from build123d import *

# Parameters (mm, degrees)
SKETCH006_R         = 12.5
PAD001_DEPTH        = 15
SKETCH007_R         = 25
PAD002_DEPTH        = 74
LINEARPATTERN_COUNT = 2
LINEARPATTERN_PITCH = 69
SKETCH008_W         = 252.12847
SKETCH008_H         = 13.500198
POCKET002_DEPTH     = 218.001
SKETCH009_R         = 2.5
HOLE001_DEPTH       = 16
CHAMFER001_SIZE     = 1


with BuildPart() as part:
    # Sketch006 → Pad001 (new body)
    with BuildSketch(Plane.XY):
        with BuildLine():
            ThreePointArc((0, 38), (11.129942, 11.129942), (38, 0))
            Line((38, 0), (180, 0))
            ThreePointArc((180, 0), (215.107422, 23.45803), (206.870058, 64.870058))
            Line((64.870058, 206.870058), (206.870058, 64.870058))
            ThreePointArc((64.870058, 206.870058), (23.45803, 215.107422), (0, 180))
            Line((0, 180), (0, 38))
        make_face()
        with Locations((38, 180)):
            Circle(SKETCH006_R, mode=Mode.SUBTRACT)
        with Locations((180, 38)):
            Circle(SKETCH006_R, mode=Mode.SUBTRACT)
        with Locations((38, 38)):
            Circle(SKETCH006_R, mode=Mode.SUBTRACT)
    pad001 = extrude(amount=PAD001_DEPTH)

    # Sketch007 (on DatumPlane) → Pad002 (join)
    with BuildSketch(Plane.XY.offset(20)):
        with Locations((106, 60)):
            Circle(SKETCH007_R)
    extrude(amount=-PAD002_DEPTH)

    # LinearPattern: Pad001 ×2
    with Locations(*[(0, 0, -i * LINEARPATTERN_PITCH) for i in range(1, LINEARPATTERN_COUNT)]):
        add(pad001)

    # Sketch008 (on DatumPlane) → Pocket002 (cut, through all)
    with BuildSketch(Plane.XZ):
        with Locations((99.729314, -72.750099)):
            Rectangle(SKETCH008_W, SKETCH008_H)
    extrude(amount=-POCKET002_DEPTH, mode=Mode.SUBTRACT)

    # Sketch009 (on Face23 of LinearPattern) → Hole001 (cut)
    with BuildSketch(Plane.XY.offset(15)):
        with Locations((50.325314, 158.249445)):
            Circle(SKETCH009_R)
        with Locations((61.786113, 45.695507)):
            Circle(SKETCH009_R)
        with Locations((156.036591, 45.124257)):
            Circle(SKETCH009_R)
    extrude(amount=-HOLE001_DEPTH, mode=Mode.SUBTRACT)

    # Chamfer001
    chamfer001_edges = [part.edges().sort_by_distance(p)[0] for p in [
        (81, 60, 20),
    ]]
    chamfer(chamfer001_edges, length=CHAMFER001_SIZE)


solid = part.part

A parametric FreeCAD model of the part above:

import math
import FreeCAD as App
import Part
import Sketcher

V = App.Vector
Q = App.Units.Quantity


def edges_at(feature, points):
    """Names of the edges that pass closest to the given points."""
    edges = feature.Shape.Edges
    near = lambda p: min(range(len(edges)), key=lambda i: edges[i].distToShape(Part.Vertex(*p))[0])
    return sorted({f"Edge{near(p) + 1}" for p in points})


def add_polygon(sketch, points):
    """Adds a closed chain of lines whose ends are joined by coincident constraints."""
    first, n = sketch.GeometryCount, len(points)
    for a, b in zip(points, points[1:] + points[:1]):
        sketch.addGeometry(Part.LineSegment(App.Vector(*a, 0), App.Vector(*b, 0)), False)
    for i in range(n):
        sketch.addConstraint(Sketcher.Constraint("Coincident", first + i, 2, first + (i + 1) % n, 1))

doc = App.newDocument("Part")
body = doc.addObject("PartDesign::Body", "Body")

# Sketch on XY plane
sketch1 = body.newObject("Sketcher::SketchObject", "Sketch")
sketch1.AttachmentSupport = (doc.getObject("XY_Plane"), [""])
sketch1.MapMode = "FlatFace"
sketch1.addGeometry(Part.ArcOfCircle(Part.Circle(V(38, 38, 0), V(0, 0, 1), 38), math.radians(180), math.radians(270)), False)
sketch1.addGeometry(Part.LineSegment(V(38, 0, 0), V(180, 0, 0)), False)
sketch1.addGeometry(Part.ArcOfCircle(Part.Circle(V(180, 38, 0), V(0, 0, 1), 38), math.radians(-90), math.radians(45)), False)
sketch1.addGeometry(Part.LineSegment(V(207, 65, 0), V(65, 207, 0)), False)
sketch1.addGeometry(Part.ArcOfCircle(Part.Circle(V(38, 180, 0), V(0, 0, 1), 38), math.radians(45), math.radians(180)), False)
sketch1.addGeometry(Part.LineSegment(V(0, 180, 0), V(0, 38, 0)), False)
sketch1.addGeometry(Part.Circle(V(38, 38, 0), V(0, 0, 1), 12), False)
sketch1.addGeometry(Part.Circle(V(180, 38, 0), V(0, 0, 1), 12), False)
sketch1.addGeometry(Part.Circle(V(38, 180, 0), V(0, 0, 1), 12), False)
sketch1.addConstraint(Sketcher.Constraint("Tangent", 0, 2, 1, 1))
sketch1.addConstraint(Sketcher.Constraint("Tangent", 1, 2, 2, 1))
sketch1.addConstraint(Sketcher.Constraint("Tangent", 2, 2, 3, 1))
sketch1.addConstraint(Sketcher.Constraint("Tangent", 3, 2, 4, 1))
sketch1.addConstraint(Sketcher.Constraint("Tangent", 4, 2, 5, 1))
sketch1.addConstraint(Sketcher.Constraint("Tangent", 5, 2, 0, 1))
sketch1.addConstraint(Sketcher.Constraint("Horizontal", 1))
sketch1.addConstraint(Sketcher.Constraint("Vertical", 5))
sketch1.addConstraint(Sketcher.Constraint("Coincident", 6, 3, 0, 3))
sketch1.addConstraint(Sketcher.Constraint("Coincident", 7, 3, 2, 3))
sketch1.addConstraint(Sketcher.Constraint("Coincident", 8, 3, 4, 3))
sketch1.addConstraint(Sketcher.Constraint("Equal", 0, 2))
sketch1.addConstraint(Sketcher.Constraint("Equal", 2, 4))
sketch1.addConstraint(Sketcher.Constraint("Equal", 6, 7))
sketch1.addConstraint(Sketcher.Constraint("Equal", 7, 8))
sketch1.addConstraint(Sketcher.Constraint("PointOnObject", 0, 2, -1))
sketch1.addConstraint(Sketcher.Constraint("PointOnObject", 4, 2, -2))
sketch1.addConstraint(Sketcher.Constraint("Equal", 1, 5))
sketch1.addConstraint(Sketcher.Constraint("Diameter", 6, Q("25 mm")))
sketch1.addConstraint(Sketcher.Constraint("Radius", 0, Q("37.999999 mm")))
sketch1.addConstraint(Sketcher.Constraint("DistanceX", 1, 1, 1, 2, Q("142 mm")))
pad1 = body.newObject("PartDesign::Pad", "Pad")
pad1.Profile = sketch1
pad1.Length = 15

# Sketch on XY plane
sketch2 = body.newObject("Sketcher::SketchObject", "Sketch001")
sketch2.AttachmentSupport = (doc.getObject("XY_Plane"), [""])
sketch2.MapMode = "FlatFace"
sketch2.AttachmentOffset = App.Placement(V(0, 0, 20), App.Rotation())
sketch2.addGeometry(Part.Circle(V(106, 60, 0), V(0, 0, 1), 25), False)
sketch2.addConstraint(Sketcher.Constraint("Diameter", 0, Q("50 mm")))
sketch2.addConstraint(Sketcher.Constraint("DistanceX", -1, 1, 0, 3, Q("106 mm")))
sketch2.addConstraint(Sketcher.Constraint("DistanceY", -1, 1, 0, 3, Q("60 mm")))
pad2 = body.newObject("PartDesign::Pad", "Pad001")
pad2.Profile = sketch2
pad2.Length = 74
pad2.Reversed = True
doc.recompute()

linearpattern = body.newObject("PartDesign::LinearPattern", "LinearPattern")
linearpattern.Originals = [pad1]
linearpattern.Direction = (doc.getObject("Z_Axis"), [""])
linearpattern.Mode = "offset"
linearpattern.Offset = 69
linearpattern.Occurrences = 2
linearpattern.Reversed = True
body.Tip = linearpattern

# Sketch on XZ plane
sketch3 = body.newObject("Sketcher::SketchObject", "Sketch002")
sketch3.AttachmentSupport = (doc.getObject("XZ_Plane"), [""])
sketch3.MapMode = "FlatFace"
add_polygon(sketch3, [(-26, -66), (-26, -80), (226, -80), (226, -66)])  # lines 0-3
sketch3.addConstraint(Sketcher.Constraint("Vertical", 0))
sketch3.addConstraint(Sketcher.Constraint("Horizontal", 1))
sketch3.addConstraint(Sketcher.Constraint("Vertical", 2))
sketch3.addConstraint(Sketcher.Constraint("Horizontal", 3))
sketch3.addConstraint(Sketcher.Constraint("DistanceY", 2, 2, -1, 1, Q("66 mm")))
sketch3.addConstraint(Sketcher.Constraint("DistanceX", 1, 1, 1, 2, Q("252.12847 mm")))
sketch3.addConstraint(Sketcher.Constraint("DistanceY", 0, 2, 0, 1, Q("13.500198 mm")))
sketch3.addConstraint(Sketcher.Constraint("DistanceX", 0, 2, -1, 1, Q("26.334921 mm")))
pocket1 = body.newObject("PartDesign::Pocket", "Pocket")
pocket1.Profile = sketch3
pocket1.Type = "ThroughAll"

# Sketch on XY plane
sketch4 = body.newObject("Sketcher::SketchObject", "Sketch003")
sketch4.AttachmentSupport = (doc.getObject("XY_Plane"), [""])
sketch4.MapMode = "FlatFace"
sketch4.AttachmentOffset = App.Placement(V(0, 0, 15), App.Rotation())
sketch4.addGeometry(Part.Circle(V(50.3, 158.2, 0), V(0, 0, 1), 2.5), False)
sketch4.addGeometry(Part.Circle(V(61.8, 45.7, 0), V(0, 0, 1), 2.5), False)
sketch4.addGeometry(Part.Circle(V(156, 45.1, 0), V(0, 0, 1), 2.5), False)
sketch4.addConstraint(Sketcher.Constraint("Equal", 0, 1))
sketch4.addConstraint(Sketcher.Constraint("Equal", 1, 2))
sketch4.addConstraint(Sketcher.Constraint("Diameter", 0, Q("5 mm")))
sketch4.addConstraint(Sketcher.Constraint("DistanceX", 0, 3, 1, 3, Q("11.460799 mm")))
sketch4.addConstraint(Sketcher.Constraint("DistanceX", -1, 1, 2, 3, Q("156.036591 mm")))
sketch4.addConstraint(Sketcher.Constraint("DistanceY", 1, 3, 0, 3, Q("112.553938 mm")))
sketch4.addConstraint(Sketcher.Constraint("DistanceY", 2, 3, 1, 3, Q("0.57125 mm")))
sketch4.addConstraint(Sketcher.Constraint("DistanceX", -1, 1, 0, 3, Q("50.325314 mm")))
sketch4.addConstraint(Sketcher.Constraint("DistanceY", -1, 1, 0, 3, Q("158.249445 mm")))
pocket2 = body.newObject("PartDesign::Pocket", "Pocket001")
pocket2.Profile = sketch4
pocket2.Length = 16
doc.recompute()

chamfer = body.newObject("PartDesign::Chamfer", "Chamfer")
chamfer.Base = (pocket2, edges_at(pocket2, [(81, 60, 20)]))
chamfer.Size = 1

doc.recompute()
